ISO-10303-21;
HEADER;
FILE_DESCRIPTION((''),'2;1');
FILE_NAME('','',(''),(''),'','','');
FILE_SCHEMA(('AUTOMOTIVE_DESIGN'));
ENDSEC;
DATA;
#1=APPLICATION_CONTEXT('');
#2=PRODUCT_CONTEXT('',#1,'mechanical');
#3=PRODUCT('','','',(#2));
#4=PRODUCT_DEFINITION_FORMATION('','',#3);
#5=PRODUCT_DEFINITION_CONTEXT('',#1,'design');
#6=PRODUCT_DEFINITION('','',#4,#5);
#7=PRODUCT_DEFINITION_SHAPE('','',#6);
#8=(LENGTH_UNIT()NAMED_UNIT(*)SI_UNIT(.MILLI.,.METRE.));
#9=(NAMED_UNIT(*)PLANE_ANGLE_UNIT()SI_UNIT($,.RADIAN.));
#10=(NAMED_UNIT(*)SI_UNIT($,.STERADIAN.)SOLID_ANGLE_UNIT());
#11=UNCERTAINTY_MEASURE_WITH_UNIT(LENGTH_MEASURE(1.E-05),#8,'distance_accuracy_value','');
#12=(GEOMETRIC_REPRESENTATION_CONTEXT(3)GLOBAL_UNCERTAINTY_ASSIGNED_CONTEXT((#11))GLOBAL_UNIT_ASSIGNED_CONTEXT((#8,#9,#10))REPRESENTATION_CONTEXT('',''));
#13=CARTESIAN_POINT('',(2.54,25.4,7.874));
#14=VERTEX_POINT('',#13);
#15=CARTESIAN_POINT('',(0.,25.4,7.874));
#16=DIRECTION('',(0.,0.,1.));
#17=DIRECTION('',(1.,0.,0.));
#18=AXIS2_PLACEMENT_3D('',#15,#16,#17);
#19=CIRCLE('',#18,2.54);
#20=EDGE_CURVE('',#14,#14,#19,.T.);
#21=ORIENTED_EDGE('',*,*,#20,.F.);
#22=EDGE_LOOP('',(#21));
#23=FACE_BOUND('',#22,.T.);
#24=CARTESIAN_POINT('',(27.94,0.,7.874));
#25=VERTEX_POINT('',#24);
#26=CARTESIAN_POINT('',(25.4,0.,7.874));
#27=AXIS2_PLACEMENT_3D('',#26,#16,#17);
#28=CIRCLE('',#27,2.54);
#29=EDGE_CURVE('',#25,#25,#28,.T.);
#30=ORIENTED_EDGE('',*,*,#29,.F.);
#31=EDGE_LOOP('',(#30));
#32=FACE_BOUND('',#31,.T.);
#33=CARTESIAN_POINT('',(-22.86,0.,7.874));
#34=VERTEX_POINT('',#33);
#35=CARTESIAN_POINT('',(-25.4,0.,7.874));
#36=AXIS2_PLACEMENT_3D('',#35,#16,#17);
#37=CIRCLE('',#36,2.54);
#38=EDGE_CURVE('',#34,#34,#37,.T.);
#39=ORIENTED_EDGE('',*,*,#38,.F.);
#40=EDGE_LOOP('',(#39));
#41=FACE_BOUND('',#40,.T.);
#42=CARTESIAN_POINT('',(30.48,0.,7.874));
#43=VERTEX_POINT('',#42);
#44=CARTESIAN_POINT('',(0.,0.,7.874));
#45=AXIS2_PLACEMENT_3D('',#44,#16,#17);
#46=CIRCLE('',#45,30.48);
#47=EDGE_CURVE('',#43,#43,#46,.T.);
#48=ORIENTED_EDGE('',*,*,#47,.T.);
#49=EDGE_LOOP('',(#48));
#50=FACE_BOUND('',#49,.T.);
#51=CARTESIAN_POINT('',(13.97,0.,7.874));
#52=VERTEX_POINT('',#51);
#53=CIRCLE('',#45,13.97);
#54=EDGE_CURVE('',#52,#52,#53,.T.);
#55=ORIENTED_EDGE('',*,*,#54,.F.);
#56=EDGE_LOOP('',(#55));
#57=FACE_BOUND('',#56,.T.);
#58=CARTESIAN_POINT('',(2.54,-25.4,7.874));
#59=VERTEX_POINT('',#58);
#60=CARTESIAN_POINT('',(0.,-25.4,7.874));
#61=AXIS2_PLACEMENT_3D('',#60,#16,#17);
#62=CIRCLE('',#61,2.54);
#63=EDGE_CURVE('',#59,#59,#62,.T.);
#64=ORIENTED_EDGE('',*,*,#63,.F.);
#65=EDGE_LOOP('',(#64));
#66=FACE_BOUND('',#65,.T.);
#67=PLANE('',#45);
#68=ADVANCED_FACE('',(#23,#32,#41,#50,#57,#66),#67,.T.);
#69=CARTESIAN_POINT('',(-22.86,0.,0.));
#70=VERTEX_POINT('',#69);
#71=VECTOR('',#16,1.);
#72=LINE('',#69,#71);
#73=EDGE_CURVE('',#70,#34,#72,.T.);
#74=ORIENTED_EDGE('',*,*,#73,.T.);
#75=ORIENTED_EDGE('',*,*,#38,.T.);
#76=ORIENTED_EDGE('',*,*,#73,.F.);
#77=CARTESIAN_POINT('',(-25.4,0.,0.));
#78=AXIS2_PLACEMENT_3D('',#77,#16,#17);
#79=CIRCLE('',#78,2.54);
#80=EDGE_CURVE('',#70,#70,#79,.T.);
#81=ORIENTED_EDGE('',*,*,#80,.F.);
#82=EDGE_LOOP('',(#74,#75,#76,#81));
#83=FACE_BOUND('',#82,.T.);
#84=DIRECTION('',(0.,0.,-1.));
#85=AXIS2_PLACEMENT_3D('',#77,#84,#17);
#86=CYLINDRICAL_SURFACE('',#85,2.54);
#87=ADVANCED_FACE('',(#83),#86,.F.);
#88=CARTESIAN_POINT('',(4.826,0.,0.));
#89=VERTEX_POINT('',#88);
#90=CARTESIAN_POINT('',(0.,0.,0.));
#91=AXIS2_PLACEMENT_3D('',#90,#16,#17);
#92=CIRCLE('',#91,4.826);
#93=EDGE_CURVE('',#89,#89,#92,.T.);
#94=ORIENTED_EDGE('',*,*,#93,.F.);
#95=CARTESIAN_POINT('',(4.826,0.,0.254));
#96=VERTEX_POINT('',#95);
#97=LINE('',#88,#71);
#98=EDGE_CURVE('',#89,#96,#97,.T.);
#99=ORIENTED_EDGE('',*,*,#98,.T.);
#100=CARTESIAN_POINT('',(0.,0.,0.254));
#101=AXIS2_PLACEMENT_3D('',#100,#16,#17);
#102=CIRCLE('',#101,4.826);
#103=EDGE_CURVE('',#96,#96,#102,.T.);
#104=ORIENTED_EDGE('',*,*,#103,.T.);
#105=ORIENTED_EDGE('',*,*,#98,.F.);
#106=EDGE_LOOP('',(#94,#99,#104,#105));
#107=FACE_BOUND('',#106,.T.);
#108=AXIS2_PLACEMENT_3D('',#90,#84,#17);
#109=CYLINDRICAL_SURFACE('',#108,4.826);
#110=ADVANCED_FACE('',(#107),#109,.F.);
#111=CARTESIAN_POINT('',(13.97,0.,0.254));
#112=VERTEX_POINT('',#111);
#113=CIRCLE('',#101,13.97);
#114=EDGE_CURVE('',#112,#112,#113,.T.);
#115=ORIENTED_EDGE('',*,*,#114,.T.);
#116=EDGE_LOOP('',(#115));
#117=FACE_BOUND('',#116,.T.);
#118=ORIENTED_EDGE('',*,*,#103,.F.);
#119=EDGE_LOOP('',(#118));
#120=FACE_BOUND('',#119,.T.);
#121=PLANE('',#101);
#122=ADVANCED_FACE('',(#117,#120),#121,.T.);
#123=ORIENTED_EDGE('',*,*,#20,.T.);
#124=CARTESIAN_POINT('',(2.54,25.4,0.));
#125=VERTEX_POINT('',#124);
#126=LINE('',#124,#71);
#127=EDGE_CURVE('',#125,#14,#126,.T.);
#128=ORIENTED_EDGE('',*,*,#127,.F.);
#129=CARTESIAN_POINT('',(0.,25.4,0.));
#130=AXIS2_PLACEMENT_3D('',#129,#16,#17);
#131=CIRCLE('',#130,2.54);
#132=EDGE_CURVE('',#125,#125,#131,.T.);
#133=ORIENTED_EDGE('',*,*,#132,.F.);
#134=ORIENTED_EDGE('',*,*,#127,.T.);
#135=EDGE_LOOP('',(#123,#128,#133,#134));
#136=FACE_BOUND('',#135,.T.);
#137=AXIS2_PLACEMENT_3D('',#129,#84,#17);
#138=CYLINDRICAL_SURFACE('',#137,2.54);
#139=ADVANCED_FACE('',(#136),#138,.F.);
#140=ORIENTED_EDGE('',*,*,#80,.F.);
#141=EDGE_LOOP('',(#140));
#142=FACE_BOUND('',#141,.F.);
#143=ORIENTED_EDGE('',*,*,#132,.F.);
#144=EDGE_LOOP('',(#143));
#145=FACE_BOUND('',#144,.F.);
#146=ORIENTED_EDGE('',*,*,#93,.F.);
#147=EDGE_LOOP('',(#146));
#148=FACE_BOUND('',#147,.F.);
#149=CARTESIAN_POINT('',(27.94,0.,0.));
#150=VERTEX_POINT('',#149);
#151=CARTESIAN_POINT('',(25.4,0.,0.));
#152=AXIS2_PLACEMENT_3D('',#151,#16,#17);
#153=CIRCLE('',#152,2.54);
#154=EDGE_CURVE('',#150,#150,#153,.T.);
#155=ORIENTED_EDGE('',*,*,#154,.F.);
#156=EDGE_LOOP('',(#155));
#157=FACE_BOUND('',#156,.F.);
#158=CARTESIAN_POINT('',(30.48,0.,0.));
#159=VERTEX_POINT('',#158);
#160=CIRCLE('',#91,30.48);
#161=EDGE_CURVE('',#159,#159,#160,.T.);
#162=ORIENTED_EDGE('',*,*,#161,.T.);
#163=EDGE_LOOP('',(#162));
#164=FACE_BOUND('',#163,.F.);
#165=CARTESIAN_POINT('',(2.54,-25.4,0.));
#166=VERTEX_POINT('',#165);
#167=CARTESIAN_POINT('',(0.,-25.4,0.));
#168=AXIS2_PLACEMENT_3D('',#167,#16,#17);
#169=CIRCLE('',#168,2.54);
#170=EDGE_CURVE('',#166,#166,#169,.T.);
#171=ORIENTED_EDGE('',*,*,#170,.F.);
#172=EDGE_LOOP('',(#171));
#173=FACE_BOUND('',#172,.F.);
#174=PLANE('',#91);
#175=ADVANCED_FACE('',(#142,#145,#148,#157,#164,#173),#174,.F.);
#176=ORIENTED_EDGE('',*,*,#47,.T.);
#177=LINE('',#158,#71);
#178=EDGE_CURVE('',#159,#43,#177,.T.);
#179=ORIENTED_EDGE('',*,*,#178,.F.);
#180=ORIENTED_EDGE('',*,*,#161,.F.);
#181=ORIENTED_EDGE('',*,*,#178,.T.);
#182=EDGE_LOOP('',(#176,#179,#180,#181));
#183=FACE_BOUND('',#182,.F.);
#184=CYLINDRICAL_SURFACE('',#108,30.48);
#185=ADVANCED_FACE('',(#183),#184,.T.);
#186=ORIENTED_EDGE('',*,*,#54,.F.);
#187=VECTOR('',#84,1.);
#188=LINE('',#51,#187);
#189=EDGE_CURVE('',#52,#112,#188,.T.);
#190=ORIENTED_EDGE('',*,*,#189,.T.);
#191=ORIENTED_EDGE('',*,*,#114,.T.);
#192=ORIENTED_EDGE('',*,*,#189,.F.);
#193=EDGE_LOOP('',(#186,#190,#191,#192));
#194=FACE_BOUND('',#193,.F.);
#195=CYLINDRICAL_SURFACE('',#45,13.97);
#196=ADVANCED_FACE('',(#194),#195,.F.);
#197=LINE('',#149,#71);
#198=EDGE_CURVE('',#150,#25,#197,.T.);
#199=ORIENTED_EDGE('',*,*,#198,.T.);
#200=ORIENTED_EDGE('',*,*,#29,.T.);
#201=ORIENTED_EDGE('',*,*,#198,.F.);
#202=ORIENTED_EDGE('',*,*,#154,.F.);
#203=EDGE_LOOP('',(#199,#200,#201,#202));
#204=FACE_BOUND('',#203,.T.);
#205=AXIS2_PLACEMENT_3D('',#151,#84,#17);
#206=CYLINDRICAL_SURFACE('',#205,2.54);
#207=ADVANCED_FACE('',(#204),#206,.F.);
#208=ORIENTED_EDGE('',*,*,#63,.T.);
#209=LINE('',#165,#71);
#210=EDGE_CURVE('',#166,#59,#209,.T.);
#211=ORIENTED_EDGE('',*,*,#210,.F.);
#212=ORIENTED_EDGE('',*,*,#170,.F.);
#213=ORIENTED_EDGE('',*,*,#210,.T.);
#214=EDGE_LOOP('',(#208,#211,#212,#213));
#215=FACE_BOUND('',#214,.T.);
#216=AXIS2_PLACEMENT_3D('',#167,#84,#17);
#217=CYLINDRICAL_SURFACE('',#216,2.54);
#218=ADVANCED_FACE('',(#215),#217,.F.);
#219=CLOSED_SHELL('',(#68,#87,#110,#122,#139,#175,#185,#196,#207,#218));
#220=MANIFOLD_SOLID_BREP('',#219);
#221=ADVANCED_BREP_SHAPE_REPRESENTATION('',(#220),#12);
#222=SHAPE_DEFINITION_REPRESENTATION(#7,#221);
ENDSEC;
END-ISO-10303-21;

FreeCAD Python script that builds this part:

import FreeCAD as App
import Part
import Sketcher
from FreeCAD import Vector
Q = App.Units.Quantity

doc = App.newDocument("Part")
body = doc.addObject("PartDesign::Body", "Body")

sketch1 = body.newObject("Sketcher::SketchObject", "Sketch")
sketch1.AttachmentSupport = (doc.getObject("XY_Plane"), [""])
sketch1.MapMode = "FlatFace"
sketch1.addGeometry([
    Part.Circle(Vector(0, 0, 0), Vector(0, 0, 1), 30.48),
    Part.Circle(Vector(0, -25.4, 0), Vector(0, 0, 1), 2.54),
    Part.Circle(Vector(-25.4, 0, 0), Vector(0, 0, 1), 2.54),
    Part.Circle(Vector(0, 0, 0), Vector(0, 0, 1), 4.826),
    Part.Circle(Vector(25.4, 0, 0), Vector(0, 0, 1), 2.54),
    Part.Circle(Vector(0, 25.4, 0), Vector(0, 0, 1), 2.54),
], False)
sketch1.addConstraint([
    Sketcher.Constraint("Coincident", 0, 3, -1, 1),
    Sketcher.Constraint("Coincident", 3, 3, -1, 1),
    Sketcher.Constraint("Equal", 1, 2),
    Sketcher.Constraint("Equal", 2, 4),
    Sketcher.Constraint("Equal", 4, 5),
    Sketcher.Constraint("Symmetric", 2, 3, 4, 3, -1, 1),
    Sketcher.Constraint("Symmetric", 1, 3, 5, 3, -1, 1),
    Sketcher.Constraint("PointOnObject", 1, 3, -2),
    Sketcher.Constraint("PointOnObject", 2, 3, -1),
    Sketcher.Constraint("Diameter", 0, Q("2.4 in")),
    Sketcher.Constraint("Diameter", 1, Q("0.2 in")),
    Sketcher.Constraint("Diameter", 3, Q("0.38 in")),
    Sketcher.Constraint("DistanceY", 1, 3, -1, 1, Q("1 in")),
    Sketcher.Constraint("DistanceX", 2, 3, -1, 1, Q("1 in")),
])
pad1 = body.newObject("PartDesign::Pad", "Pad")
pad1.Profile = sketch1
pad1.Length = Q("0.31 in")

sketch2 = body.newObject("Sketcher::SketchObject", "Sketch001")
sketch2.AttachmentSupport = (doc.getObject("XY_Plane"), [""])
sketch2.MapMode = "FlatFace"
sketch2.AttachmentOffset = App.Placement(Vector(0, 0, 0.31 * 25.4), App.Rotation())
sketch2.addGeometry([
    Part.Circle(Vector(0, 0, 0), Vector(0, 0, 1), 13.97),
    Part.Circle(Vector(0, 0, 0), Vector(0, 0, 1), 4.826),
], False)
sketch2.addConstraint([
    Sketcher.Constraint("Coincident", 0, 3, -1, 1),
    Sketcher.Constraint("Coincident", 1, 3, -1, 1),
    Sketcher.Constraint("Diameter", 0, Q("1.1 in")),
    Sketcher.Constraint("Diameter", 1, Q("0.38 in")),
])
pocket1 = body.newObject("PartDesign::Pocket", "Pocket")
pocket1.Profile = sketch2
pocket1.Length = Q("0.3 in")

doc.recompute()
